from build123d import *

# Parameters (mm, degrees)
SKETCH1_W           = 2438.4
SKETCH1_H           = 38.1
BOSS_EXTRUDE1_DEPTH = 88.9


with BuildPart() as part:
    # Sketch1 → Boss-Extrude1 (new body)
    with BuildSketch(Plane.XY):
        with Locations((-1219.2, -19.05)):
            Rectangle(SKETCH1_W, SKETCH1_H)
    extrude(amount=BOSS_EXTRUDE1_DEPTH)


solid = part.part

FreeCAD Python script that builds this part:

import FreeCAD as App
import Part
import Sketcher

V = App.Vector
Q = App.Units.Quantity


def add_polygon(sketch, points):
    """Adds a closed chain of lines whose ends are joined by coincident constraints."""
    first, n = sketch.GeometryCount, len(points)
    for a, b in zip(points, points[1:] + points[:1]):
        sketch.addGeometry(Part.LineSegment(App.Vector(*a, 0), App.Vector(*b, 0)), False)
    for i in range(n):
        sketch.addConstraint(Sketcher.Constraint("Coincident", first + i, 2, first + (i + 1) % n, 1))

doc = App.newDocument("Part")
body = doc.addObject("PartDesign::Body", "Body")

sketch1 = body.newObject("Sketcher::SketchObject", "Sketch")
sketch1.AttachmentSupport = (doc.getObject("XY_Plane"), [""])
sketch1.MapMode = "FlatFace"
add_polygon(sketch1, [(-2438, 0), (-2438, -38), (0, -38), (0, 0)])
sketch1.addConstraint([
    Sketcher.Constraint("Vertical", 0),
    Sketcher.Constraint("Horizontal", 1),
    Sketcher.Constraint("Vertical", 2),
    Sketcher.Constraint("Horizontal", 3),
    Sketcher.Constraint("Coincident", 2, 2, -1, 1),
    Sketcher.Constraint("DistanceX", 1, 1, 1, 2, Q("96 in")),
    Sketcher.Constraint("DistanceY", 0, 2, 0, 1, Q("1.5 in")),
])
pad1 = body.newObject("PartDesign::Pad", "Pad")
pad1.Profile = sketch1
pad1.Length = Q("3.5 in")

doc.recompute()
